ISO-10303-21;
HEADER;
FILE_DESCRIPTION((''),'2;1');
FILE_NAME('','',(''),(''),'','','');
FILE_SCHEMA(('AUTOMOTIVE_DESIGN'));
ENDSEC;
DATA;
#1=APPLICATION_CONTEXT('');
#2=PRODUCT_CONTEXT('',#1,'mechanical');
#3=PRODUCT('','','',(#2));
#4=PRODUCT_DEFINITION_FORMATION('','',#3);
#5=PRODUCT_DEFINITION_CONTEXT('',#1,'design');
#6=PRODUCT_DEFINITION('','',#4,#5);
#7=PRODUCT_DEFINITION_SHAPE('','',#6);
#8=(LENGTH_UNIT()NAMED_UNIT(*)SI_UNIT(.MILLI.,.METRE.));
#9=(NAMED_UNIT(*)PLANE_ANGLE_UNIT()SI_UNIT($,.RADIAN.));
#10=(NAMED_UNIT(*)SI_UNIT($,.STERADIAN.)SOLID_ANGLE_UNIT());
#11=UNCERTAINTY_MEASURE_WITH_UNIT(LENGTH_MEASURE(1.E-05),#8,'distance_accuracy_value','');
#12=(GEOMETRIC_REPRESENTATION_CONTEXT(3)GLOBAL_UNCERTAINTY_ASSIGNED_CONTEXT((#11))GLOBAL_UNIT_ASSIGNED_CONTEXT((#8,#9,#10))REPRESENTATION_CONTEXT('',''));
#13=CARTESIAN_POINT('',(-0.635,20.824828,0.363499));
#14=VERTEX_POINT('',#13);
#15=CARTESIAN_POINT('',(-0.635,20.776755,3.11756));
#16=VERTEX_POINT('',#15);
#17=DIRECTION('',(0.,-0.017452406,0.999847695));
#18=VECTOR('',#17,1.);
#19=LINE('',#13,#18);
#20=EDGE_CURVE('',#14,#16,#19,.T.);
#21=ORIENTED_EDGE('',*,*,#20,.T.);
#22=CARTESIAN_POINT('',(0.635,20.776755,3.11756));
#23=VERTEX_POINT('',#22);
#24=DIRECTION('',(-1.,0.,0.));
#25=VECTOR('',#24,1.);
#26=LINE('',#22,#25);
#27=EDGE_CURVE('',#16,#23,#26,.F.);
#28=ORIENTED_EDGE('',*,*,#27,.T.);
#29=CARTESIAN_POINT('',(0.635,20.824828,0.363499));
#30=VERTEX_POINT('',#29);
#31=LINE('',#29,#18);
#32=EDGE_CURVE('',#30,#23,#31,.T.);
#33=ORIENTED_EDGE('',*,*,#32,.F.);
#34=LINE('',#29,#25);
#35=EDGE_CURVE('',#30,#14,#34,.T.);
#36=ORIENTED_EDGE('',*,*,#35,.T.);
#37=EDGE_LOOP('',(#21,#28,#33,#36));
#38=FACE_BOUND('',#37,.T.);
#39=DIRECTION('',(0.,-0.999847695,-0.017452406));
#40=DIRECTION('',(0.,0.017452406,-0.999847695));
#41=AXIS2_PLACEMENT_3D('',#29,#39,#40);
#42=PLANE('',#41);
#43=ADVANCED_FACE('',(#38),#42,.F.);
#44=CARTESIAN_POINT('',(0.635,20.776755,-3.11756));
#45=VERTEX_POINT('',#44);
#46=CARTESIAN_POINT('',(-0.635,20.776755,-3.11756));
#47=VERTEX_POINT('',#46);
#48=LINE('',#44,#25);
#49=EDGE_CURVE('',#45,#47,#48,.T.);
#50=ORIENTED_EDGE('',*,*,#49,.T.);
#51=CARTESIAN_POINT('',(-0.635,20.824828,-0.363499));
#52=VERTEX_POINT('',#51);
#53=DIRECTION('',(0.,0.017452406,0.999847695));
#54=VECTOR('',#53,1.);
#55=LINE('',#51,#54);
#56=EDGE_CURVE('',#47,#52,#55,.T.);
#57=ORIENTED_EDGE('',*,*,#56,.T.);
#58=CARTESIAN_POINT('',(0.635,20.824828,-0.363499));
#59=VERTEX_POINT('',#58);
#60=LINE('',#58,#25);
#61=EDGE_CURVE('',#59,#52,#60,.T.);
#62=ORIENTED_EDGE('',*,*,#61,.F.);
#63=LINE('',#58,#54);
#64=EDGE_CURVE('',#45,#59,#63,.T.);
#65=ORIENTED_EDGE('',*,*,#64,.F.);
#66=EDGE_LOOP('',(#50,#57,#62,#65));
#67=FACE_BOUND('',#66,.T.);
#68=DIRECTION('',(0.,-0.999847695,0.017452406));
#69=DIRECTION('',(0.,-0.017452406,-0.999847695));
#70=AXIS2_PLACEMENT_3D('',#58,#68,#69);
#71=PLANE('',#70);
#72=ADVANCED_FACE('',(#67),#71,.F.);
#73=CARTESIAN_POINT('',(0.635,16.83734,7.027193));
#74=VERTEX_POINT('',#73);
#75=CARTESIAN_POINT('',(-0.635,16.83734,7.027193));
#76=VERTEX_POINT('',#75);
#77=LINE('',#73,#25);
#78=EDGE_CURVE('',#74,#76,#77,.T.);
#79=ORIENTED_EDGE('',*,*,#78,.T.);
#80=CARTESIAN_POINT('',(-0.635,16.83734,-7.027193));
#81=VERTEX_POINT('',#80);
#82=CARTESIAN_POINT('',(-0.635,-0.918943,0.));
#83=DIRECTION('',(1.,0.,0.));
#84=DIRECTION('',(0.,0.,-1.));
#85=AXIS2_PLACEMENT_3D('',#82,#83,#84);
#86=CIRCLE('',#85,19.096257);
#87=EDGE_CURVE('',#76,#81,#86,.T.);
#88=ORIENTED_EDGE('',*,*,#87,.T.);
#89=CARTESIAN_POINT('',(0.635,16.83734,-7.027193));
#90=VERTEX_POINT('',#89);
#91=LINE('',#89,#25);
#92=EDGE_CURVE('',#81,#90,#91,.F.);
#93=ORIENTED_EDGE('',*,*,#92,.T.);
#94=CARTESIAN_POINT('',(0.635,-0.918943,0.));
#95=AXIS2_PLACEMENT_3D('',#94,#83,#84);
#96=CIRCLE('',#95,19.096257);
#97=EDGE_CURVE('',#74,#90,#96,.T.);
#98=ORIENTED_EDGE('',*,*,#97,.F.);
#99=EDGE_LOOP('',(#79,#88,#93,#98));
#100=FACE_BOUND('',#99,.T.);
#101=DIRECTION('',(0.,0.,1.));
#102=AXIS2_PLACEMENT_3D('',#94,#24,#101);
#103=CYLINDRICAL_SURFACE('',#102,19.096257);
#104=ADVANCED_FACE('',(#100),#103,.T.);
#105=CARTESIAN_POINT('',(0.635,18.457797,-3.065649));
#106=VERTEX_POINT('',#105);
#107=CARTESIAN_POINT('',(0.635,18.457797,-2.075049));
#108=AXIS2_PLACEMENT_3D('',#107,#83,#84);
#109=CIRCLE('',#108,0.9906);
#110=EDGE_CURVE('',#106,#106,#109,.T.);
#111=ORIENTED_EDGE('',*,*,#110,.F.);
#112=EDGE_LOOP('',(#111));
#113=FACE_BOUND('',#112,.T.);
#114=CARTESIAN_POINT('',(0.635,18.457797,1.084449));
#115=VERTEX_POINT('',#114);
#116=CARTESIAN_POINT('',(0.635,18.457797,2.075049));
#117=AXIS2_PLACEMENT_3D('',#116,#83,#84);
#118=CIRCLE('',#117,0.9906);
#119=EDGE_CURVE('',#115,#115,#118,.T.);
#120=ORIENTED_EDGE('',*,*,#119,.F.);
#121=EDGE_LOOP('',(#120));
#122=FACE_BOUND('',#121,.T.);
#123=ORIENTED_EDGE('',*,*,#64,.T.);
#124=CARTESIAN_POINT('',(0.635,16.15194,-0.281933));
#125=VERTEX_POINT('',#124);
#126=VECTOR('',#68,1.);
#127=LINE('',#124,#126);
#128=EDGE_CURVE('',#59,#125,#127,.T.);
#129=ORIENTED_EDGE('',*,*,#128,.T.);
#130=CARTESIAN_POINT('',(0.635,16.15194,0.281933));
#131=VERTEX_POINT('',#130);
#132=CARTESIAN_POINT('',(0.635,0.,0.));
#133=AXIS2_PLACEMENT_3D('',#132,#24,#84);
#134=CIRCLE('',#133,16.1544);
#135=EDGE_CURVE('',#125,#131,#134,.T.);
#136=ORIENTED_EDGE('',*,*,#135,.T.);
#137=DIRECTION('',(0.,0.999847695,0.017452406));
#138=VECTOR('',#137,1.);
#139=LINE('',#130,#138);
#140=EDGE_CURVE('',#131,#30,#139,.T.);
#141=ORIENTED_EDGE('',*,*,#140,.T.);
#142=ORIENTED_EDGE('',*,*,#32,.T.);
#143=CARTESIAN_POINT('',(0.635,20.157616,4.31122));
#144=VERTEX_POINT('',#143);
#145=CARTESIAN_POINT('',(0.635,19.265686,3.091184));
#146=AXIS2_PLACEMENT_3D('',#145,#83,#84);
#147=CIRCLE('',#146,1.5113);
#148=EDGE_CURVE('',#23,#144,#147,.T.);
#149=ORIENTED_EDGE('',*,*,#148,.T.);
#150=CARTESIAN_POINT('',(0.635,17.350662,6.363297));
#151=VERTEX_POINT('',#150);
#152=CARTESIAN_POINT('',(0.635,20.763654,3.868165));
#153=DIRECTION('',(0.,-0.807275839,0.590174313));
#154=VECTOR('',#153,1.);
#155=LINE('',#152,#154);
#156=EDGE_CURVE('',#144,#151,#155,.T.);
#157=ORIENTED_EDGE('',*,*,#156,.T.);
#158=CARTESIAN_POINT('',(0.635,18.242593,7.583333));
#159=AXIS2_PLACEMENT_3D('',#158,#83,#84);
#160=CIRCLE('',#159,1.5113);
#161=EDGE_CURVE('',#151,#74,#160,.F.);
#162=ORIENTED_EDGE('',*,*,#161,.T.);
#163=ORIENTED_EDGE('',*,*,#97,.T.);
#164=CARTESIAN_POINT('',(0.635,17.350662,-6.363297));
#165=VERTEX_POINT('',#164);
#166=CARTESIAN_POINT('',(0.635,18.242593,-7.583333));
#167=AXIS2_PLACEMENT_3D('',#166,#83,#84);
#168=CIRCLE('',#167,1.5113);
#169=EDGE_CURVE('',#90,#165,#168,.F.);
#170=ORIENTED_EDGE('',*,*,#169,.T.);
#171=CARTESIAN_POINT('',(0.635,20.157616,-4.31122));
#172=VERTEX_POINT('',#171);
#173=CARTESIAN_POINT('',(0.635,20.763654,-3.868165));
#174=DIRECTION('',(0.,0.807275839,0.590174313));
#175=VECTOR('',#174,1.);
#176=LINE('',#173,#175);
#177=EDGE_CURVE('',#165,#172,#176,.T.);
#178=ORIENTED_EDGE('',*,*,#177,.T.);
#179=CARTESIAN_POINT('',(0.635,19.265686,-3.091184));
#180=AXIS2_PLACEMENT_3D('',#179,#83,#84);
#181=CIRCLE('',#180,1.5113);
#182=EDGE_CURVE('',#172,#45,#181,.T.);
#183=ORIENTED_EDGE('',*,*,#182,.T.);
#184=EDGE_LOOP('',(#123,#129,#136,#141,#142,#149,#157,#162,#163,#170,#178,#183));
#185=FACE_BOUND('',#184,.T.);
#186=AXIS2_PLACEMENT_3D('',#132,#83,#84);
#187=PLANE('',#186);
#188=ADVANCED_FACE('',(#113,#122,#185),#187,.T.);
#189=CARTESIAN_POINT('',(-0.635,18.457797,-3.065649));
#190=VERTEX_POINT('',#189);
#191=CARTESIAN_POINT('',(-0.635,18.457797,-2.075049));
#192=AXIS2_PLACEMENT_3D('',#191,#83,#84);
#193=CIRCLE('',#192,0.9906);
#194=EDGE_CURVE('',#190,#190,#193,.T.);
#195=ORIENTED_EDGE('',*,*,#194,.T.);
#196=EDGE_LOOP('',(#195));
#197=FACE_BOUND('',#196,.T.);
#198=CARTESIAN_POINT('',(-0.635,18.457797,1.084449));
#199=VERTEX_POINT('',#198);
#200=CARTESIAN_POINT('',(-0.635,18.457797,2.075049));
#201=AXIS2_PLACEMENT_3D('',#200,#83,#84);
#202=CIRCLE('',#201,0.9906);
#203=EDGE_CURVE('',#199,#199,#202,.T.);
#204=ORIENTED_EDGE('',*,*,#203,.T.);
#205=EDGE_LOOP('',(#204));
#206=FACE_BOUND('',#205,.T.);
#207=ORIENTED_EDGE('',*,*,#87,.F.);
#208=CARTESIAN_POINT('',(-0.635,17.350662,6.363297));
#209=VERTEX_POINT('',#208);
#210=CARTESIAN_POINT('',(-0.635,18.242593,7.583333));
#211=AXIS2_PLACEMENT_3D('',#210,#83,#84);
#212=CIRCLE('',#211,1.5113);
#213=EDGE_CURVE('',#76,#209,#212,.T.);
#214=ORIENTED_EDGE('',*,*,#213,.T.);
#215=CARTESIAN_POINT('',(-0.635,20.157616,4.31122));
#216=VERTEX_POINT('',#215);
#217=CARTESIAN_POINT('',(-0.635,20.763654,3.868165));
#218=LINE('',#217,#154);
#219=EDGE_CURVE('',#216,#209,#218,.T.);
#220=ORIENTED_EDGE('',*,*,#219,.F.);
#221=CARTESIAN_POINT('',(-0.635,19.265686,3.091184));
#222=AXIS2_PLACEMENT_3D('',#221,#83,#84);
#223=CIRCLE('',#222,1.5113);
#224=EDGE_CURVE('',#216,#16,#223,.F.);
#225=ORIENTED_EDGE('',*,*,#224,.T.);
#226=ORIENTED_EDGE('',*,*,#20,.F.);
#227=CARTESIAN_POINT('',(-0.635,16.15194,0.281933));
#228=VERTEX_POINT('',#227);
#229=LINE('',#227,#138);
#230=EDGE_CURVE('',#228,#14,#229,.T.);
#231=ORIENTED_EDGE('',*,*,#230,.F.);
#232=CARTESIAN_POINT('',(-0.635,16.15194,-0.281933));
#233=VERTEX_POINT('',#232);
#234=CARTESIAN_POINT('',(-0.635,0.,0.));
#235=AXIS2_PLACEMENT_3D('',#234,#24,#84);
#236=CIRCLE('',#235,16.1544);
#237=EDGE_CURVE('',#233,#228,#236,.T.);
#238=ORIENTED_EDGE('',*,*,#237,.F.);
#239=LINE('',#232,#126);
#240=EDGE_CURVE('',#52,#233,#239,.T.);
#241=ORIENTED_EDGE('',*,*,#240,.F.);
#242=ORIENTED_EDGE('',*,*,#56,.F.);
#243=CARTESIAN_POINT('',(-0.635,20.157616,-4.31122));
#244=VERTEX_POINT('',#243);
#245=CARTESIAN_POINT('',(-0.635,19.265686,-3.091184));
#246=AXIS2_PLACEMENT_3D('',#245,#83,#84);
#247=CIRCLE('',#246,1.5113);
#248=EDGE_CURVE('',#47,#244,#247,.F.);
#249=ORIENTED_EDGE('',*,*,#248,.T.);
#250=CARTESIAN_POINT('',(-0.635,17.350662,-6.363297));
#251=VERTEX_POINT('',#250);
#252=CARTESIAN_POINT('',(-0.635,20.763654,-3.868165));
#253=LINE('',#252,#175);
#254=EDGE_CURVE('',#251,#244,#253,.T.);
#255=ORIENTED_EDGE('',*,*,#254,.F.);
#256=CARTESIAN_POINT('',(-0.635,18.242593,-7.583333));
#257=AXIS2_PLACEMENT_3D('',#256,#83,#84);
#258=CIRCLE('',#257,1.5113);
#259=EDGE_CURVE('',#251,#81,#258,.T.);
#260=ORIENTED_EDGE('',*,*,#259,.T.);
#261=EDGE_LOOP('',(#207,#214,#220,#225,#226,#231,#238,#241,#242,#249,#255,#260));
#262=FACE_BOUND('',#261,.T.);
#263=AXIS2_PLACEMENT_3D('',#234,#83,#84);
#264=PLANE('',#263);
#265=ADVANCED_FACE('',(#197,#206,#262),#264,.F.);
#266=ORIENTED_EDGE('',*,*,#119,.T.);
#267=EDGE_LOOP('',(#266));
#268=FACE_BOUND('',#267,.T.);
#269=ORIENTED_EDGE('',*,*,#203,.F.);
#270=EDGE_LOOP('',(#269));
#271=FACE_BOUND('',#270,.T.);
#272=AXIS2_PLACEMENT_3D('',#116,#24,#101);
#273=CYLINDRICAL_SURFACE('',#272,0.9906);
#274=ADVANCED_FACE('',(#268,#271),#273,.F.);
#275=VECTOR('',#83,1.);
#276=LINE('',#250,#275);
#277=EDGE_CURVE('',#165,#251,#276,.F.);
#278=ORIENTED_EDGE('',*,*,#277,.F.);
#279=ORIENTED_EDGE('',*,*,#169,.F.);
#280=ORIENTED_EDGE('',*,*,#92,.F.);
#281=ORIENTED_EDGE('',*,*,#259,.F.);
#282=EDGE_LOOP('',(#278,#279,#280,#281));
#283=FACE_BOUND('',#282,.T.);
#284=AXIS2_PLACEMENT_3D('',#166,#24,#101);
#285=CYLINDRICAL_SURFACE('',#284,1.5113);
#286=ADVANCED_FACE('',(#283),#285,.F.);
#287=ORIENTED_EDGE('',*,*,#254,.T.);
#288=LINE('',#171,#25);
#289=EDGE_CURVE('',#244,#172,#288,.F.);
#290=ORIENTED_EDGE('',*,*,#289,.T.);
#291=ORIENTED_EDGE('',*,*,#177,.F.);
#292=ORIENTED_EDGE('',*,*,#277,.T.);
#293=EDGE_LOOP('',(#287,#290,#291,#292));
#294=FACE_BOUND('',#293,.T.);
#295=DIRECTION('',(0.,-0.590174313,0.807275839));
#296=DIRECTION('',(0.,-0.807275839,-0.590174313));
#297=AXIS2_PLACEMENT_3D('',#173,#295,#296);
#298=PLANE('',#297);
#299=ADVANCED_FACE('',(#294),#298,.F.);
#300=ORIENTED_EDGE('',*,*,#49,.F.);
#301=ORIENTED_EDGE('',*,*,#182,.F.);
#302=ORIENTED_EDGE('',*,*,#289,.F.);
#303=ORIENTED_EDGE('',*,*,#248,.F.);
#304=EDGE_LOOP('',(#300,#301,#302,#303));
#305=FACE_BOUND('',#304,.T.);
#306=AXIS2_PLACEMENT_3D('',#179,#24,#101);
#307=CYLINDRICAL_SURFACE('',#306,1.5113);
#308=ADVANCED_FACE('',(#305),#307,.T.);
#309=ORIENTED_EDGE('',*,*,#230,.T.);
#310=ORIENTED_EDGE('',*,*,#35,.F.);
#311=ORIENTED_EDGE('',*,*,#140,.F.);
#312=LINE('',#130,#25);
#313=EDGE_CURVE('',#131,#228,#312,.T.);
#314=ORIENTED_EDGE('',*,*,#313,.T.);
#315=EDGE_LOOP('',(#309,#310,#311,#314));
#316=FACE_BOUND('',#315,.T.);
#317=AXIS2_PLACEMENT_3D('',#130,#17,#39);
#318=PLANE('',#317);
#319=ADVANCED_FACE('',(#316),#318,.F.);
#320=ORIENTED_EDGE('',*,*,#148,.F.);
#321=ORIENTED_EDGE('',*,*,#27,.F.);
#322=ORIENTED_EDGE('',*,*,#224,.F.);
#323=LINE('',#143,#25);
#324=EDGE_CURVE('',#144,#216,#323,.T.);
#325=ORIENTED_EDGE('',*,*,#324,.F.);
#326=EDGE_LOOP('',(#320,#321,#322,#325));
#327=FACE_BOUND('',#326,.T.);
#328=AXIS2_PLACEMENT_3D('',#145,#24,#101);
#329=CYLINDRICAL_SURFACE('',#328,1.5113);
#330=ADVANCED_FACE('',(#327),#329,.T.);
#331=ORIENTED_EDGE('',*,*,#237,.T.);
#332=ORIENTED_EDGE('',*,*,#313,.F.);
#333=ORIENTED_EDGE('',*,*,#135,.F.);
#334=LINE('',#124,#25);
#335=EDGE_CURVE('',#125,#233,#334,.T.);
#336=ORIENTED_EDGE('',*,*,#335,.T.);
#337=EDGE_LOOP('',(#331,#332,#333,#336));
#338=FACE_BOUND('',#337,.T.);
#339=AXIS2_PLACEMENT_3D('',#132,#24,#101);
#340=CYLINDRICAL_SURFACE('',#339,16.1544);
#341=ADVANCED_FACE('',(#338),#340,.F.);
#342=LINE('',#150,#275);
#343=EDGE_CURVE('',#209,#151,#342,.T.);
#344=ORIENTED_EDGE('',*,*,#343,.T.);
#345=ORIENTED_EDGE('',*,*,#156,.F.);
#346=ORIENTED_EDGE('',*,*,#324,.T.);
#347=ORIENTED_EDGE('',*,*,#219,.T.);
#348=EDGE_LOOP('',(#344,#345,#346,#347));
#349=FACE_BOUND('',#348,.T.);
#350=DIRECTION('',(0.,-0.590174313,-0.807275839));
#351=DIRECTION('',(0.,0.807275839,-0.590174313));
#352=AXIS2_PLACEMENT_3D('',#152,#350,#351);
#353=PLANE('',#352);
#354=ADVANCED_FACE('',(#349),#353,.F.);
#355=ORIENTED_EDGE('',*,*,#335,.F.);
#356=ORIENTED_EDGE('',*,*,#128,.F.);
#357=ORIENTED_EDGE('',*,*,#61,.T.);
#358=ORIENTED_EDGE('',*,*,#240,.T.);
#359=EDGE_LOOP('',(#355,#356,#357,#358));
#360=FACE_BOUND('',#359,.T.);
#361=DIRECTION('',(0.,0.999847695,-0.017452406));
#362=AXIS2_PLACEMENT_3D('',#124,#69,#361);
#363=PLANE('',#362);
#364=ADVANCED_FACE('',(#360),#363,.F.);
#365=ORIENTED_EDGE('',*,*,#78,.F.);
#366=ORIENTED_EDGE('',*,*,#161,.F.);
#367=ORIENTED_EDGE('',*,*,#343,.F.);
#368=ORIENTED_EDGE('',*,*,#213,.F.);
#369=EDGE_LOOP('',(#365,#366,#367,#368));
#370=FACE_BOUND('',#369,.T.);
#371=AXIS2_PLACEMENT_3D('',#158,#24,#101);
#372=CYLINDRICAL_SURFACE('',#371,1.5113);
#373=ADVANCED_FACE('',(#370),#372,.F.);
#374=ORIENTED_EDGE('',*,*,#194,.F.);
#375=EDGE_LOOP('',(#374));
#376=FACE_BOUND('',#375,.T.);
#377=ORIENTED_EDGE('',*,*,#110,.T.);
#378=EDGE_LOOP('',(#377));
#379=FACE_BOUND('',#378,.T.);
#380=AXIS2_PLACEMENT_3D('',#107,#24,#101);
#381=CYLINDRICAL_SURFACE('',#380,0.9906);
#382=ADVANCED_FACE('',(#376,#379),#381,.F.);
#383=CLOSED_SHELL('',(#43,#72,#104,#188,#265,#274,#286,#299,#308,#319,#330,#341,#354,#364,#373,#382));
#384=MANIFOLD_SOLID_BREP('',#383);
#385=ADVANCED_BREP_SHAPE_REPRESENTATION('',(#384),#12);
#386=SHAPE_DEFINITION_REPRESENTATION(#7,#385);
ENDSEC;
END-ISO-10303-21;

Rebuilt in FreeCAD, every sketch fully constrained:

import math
import FreeCAD as App
import Part
import Sketcher
Q = App.Units.Quantity


def edges_at(feature, points):
    """Names of the edges that pass closest to the given points."""
    edges = feature.Shape.Edges
    near = lambda p: min(range(len(edges)), key=lambda i: edges[i].distToShape(Part.Vertex(*p))[0])
    return sorted({f"Edge{near(p) + 1}" for p in points})

doc = App.newDocument("Part")
body = doc.addObject("PartDesign::Body", "Body")

sketch1 = body.newObject("Sketcher::SketchObject", "Sketch")
sketch1.AttachmentSupport = (doc.getObject("YZ_Plane"), [""])
sketch1.MapMode = "FlatFace"
sketch1.addGeometry([
    Part.LineSegment(App.Vector(16.15194, 0.281933, 0), App.Vector(20.824828, 0.363499, 0)),
    Part.LineSegment(App.Vector(20.824828, 0.363499, 0), App.Vector(20.763654, 3.868165, 0)),
    Part.LineSegment(App.Vector(20.763654, 3.868165, 0), App.Vector(16.990769, 6.626404, 0)),
    Part.ArcOfCircle(Part.Circle(App.Vector(-0.918943, 0, 0), App.Vector(0, 0, 1), 19.096257), math.radians(20.303939), math.radians(339.696061)),
    Part.LineSegment(App.Vector(16.990769, -6.626404, 0), App.Vector(20.763654, -3.868165, 0)),
    Part.LineSegment(App.Vector(20.763654, -3.868165, 0), App.Vector(20.824828, -0.363499, 0)),
    Part.LineSegment(App.Vector(20.824828, -0.363499, 0), App.Vector(16.15194, -0.281933, 0)),
    Part.ArcOfCircle(Part.Circle(App.Vector(0, 0, 0), App.Vector(0, 0, 1), 16.1544), math.radians(1), math.radians(359)),
    Part.Circle(App.Vector(18.457797, 2.075049, 0), App.Vector(0, 0, 1), 0.9906),
    Part.Circle(App.Vector(18.457797, -2.075049, 0), App.Vector(0, 0, 1), 0.9906),
], False)
sketch1.addConstraint([
    Sketcher.Constraint("Coincident", 0, 2, 1, 1),
    Sketcher.Constraint("Coincident", 1, 2, 2, 1),
    Sketcher.Constraint("Coincident", 2, 2, 3, 1),
    Sketcher.Constraint("Coincident", 3, 2, 4, 1),
    Sketcher.Constraint("Coincident", 4, 2, 5, 1),
    Sketcher.Constraint("Coincident", 5, 2, 6, 1),
    Sketcher.Constraint("Coincident", 6, 2, 7, 2),
    Sketcher.Constraint("Coincident", 7, 1, 0, 1),
    Sketcher.Constraint("Coincident", 7, 3, -1, 1),
    Sketcher.Constraint("Equal", 8, 9),
    Sketcher.Constraint("Symmetric", 8, 3, 9, 3, -1),
    Sketcher.Constraint("Symmetric", 2, 2, 3, 2, -1),
    Sketcher.Constraint("Symmetric", 1, 2, 4, 2, -1),
    Sketcher.Constraint("Symmetric", 0, 2, 5, 2, -1),
    Sketcher.Constraint("Perpendicular", 0, 1),
    Sketcher.Constraint("Perpendicular", 5, 6),
    Sketcher.Constraint("Equal", 0, 2),
    Sketcher.Constraint("Diameter", 8, Q("0.078 in")),
    Sketcher.Constraint("Angle", 0, Q("1 deg")),
    Sketcher.Constraint("Radius", 7, Q("0.636 in")),
    Sketcher.Constraint("Distance", 0, Q("0.184 in")),
    Sketcher.Constraint("Distance", 1, Q("0.138 in")),
    Sketcher.Constraint("Radius", 3, 19.096257),
    Sketcher.Constraint("DistanceY", -1, 1, 0, 2, 0.363499),
    Sketcher.Constraint("DistanceY", 9, 3, 8, 3, 4.150098),
    Sketcher.Constraint("DistanceX", -1, 1, 2, 2, 16.990769),
    Sketcher.Constraint("DistanceX", 3, 3, 8, 3, 19.37674),
])
pad1 = body.newObject("PartDesign::Pad", "Pad")
pad1.Profile = sketch1
pad1.Length = Q("0.05 in")
pad1.Midplane = True
doc.recompute()

fillet = body.newObject("PartDesign::Fillet", "Fillet")
fillet.Base = (pad1, edges_at(pad1, [
    (0, 20.764, -3.868),
    (0, 16.991, -6.626),
    (0, 16.991, 6.626),
    (0, 20.764, 3.868),
]))
fillet.Radius = Q("0.0595 in")

doc.recompute()
